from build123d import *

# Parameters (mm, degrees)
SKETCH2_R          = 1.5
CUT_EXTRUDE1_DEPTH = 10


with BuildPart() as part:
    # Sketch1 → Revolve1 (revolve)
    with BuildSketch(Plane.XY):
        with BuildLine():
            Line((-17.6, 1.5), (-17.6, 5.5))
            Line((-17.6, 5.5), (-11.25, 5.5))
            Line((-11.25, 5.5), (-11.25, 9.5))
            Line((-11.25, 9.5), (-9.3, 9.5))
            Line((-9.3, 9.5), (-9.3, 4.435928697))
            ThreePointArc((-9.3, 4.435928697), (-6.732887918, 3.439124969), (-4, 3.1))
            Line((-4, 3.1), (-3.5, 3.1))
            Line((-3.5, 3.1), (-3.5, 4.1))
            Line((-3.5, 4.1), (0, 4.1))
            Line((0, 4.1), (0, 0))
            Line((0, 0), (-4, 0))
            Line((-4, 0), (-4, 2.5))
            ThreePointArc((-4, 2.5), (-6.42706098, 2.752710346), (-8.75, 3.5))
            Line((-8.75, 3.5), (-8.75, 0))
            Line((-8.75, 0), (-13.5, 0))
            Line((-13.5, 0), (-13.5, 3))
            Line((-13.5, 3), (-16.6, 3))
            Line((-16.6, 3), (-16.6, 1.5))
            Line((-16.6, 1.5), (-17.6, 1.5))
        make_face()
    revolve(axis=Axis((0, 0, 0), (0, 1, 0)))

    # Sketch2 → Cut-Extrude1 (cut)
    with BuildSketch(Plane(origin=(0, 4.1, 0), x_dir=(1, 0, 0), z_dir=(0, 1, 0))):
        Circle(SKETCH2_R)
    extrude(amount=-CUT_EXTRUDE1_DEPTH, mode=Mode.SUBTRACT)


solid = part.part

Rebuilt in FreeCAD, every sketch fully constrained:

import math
import FreeCAD as App
import Part
import Sketcher

V = App.Vector

doc = App.newDocument("Part")
body = doc.addObject("PartDesign::Body", "Body")

# Sketch on XY plane
sketch1 = body.newObject("Sketcher::SketchObject", "Sketch")
sketch1.AttachmentSupport = (doc.getObject("XY_Plane"), [""])
sketch1.MapMode = "FlatFace"
sketch1.addGeometry([
    Part.LineSegment(V(-17.6, 5.5, 0), V(-17.6, 1.5, 0)),  # 0
    Part.LineSegment(V(-17.6, 1.5, 0), V(-16.6, 1.5, 0)),  # 1
    Part.LineSegment(V(-16.6, 1.5, 0), V(-16.6, 3, 0)),  # 2
    Part.LineSegment(V(-16.6, 3, 0), V(-13.5, 3, 0)),  # 3
    Part.LineSegment(V(-13.5, 3, 0), V(-13.5, 0, 0)),  # 4
    Part.LineSegment(V(-13.5, 0, 0), V(-8.8, 0, 0)),  # 5
    Part.LineSegment(V(-8.8, 0, 0), V(-8.8, 3.5, 0)),  # 6
    Part.ArcOfCircle(Part.Circle(V(-4, 14.3, 0), V(0, 0, 1), 11.8), math.radians(-114), math.radians(-90)),  # 7
    Part.LineSegment(V(-4, 2.5, 0), V(-4, 0, 0)),  # 8
    Part.LineSegment(V(-4, 0, 0), V(0, 0, 0)),  # 9
    Part.LineSegment(V(0, 0, 0), V(0, 4.1, 0)),  # 10
    Part.LineSegment(V(0, 4.1, 0), V(-3.5, 4.1, 0)),  # 11
    Part.LineSegment(V(-3.5, 4.1, 0), V(-3.5, 3.1, 0)),  # 12
    Part.LineSegment(V(-3.5, 3.1, 0), V(-4, 3.1, 0)),  # 13
    Part.ArcOfCircle(Part.Circle(V(-4, 14.3, 0), V(0, 0, 1), 11.2), math.radians(-118), math.radians(-90)),  # 14
    Part.LineSegment(V(-9.3, 4.4, 0), V(-9.3, 9.5, 0)),  # 15
    Part.LineSegment(V(-9.3, 9.5, 0), V(-11.2, 9.5, 0)),  # 16
    Part.LineSegment(V(-11.2, 9.5, 0), V(-11.2, 5.5, 0)),  # 17
    Part.LineSegment(V(-11.2, 5.5, 0), V(-17.6, 5.5, 0)),  # 18
], False)
sketch1.addConstraint([
    Sketcher.Constraint("Coincident", 0, 2, 1, 1),
    Sketcher.Constraint("Coincident", 1, 2, 2, 1),
    Sketcher.Constraint("Coincident", 2, 2, 3, 1),
    Sketcher.Constraint("Coincident", 3, 2, 4, 1),
    Sketcher.Constraint("Coincident", 4, 2, 5, 1),
    Sketcher.Constraint("Coincident", 5, 2, 6, 1),
    Sketcher.Constraint("Coincident", 6, 2, 7, 1),
    Sketcher.Constraint("Coincident", 7, 2, 8, 1),
    Sketcher.Constraint("Coincident", 8, 2, 9, 1),
    Sketcher.Constraint("Coincident", 9, 2, 10, 1),
    Sketcher.Constraint("Coincident", 10, 2, 11, 1),
    Sketcher.Constraint("Coincident", 11, 2, 12, 1),
    Sketcher.Constraint("Coincident", 12, 2, 13, 1),
    Sketcher.Constraint("Tangent", 13, 2, 14, 2),
    Sketcher.Constraint("Coincident", 14, 1, 15, 1),
    Sketcher.Constraint("Coincident", 15, 2, 16, 1),
    Sketcher.Constraint("Coincident", 16, 2, 17, 1),
    Sketcher.Constraint("Coincident", 17, 2, 18, 1),
    Sketcher.Constraint("Coincident", 18, 2, 0, 1),
    Sketcher.Constraint("Vertical", 0),
    Sketcher.Constraint("Horizontal", 1),
    Sketcher.Constraint("Vertical", 2),
    Sketcher.Constraint("Horizontal", 3),
    Sketcher.Constraint("Vertical", 4),
    Sketcher.Constraint("Horizontal", 5),
    Sketcher.Constraint("Vertical", 6),
    Sketcher.Constraint("Vertical", 8),
    Sketcher.Constraint("Horizontal", 9),
    Sketcher.Constraint("Vertical", 10),
    Sketcher.Constraint("Horizontal", 11),
    Sketcher.Constraint("Vertical", 12),
    Sketcher.Constraint("Horizontal", 13),
    Sketcher.Constraint("Vertical", 15),
    Sketcher.Constraint("Horizontal", 16),
    Sketcher.Constraint("Vertical", 17),
    Sketcher.Constraint("Horizontal", 18),
    Sketcher.Constraint("Coincident", 9, 2, -1, 1),
    Sketcher.Constraint("Coincident", 14, 3, 7, 3),
    Sketcher.Constraint("PointOnObject", 4, 2, -1),
    Sketcher.Constraint("Vertical", 14, 3, 7, 2),
    Sketcher.Constraint("Equal", 9, 0),
    Sketcher.Constraint("Equal", 11, 6),
    Sketcher.Constraint("Equal", 1, 12),
    Sketcher.Constraint("Equal", 0, 17),
    Sketcher.Constraint("DistanceX", 1, 1, 1, 2, 1.0),
    Sketcher.Constraint("DistanceX", 9, 1, 9, 2, 4.0),
    Sketcher.Constraint("DistanceY", 4, 2, 4, 1, 3.0),
    Sketcher.Constraint("DistanceX", 3, 1, 3, 2, 3.1),
    Sketcher.Constraint("DistanceX", 11, 2, 11, 1, 3.5),
    Sketcher.Constraint("DistanceY", 2, 1, 2, 2, 1.5),
    Sketcher.Constraint("DistanceY", 8, 2, 8, 1, 2.5),
    Sketcher.Constraint("DistanceY", 10, 1, 10, 2, 4.1),
    Sketcher.Constraint("DistanceX", 5, 1, 5, 2, 4.75),
    Sketcher.Constraint("DistanceX", 16, 2, 16, 1, 1.95),
    Sketcher.Constraint("DistanceX", 18, 2, 18, 1, 6.35),
    Sketcher.Constraint("DistanceX", 0, 2, -1, 1, 17.6),
])
revolution = body.newObject("PartDesign::Revolution", "Revolution")
revolution.Profile = sketch1
revolution.ReferenceAxis = (sketch1, ["V_Axis"])
revolution.Angle = 360

# Sketch on XZ plane
sketch2 = body.newObject("Sketcher::SketchObject", "Sketch001")
sketch2.AttachmentSupport = (doc.getObject("XZ_Plane"), [""])
sketch2.MapMode = "FlatFace"
sketch2.AttachmentOffset = App.Placement(V(0, 0, -4.1), App.Rotation())
sketch2.addGeometry(Part.Circle(V(0, 0, 0), V(0, 0, 1), 1.5), False)
sketch2.addConstraint([
    Sketcher.Constraint("Coincident", 0, 3, -1, 1),
    Sketcher.Constraint("Diameter", 0, 3.0),
])
pocket1 = body.newObject("PartDesign::Pocket", "Pocket")
pocket1.Profile = sketch2
pocket1.Length = 10
pocket1.Reversed = True

doc.recompute()
